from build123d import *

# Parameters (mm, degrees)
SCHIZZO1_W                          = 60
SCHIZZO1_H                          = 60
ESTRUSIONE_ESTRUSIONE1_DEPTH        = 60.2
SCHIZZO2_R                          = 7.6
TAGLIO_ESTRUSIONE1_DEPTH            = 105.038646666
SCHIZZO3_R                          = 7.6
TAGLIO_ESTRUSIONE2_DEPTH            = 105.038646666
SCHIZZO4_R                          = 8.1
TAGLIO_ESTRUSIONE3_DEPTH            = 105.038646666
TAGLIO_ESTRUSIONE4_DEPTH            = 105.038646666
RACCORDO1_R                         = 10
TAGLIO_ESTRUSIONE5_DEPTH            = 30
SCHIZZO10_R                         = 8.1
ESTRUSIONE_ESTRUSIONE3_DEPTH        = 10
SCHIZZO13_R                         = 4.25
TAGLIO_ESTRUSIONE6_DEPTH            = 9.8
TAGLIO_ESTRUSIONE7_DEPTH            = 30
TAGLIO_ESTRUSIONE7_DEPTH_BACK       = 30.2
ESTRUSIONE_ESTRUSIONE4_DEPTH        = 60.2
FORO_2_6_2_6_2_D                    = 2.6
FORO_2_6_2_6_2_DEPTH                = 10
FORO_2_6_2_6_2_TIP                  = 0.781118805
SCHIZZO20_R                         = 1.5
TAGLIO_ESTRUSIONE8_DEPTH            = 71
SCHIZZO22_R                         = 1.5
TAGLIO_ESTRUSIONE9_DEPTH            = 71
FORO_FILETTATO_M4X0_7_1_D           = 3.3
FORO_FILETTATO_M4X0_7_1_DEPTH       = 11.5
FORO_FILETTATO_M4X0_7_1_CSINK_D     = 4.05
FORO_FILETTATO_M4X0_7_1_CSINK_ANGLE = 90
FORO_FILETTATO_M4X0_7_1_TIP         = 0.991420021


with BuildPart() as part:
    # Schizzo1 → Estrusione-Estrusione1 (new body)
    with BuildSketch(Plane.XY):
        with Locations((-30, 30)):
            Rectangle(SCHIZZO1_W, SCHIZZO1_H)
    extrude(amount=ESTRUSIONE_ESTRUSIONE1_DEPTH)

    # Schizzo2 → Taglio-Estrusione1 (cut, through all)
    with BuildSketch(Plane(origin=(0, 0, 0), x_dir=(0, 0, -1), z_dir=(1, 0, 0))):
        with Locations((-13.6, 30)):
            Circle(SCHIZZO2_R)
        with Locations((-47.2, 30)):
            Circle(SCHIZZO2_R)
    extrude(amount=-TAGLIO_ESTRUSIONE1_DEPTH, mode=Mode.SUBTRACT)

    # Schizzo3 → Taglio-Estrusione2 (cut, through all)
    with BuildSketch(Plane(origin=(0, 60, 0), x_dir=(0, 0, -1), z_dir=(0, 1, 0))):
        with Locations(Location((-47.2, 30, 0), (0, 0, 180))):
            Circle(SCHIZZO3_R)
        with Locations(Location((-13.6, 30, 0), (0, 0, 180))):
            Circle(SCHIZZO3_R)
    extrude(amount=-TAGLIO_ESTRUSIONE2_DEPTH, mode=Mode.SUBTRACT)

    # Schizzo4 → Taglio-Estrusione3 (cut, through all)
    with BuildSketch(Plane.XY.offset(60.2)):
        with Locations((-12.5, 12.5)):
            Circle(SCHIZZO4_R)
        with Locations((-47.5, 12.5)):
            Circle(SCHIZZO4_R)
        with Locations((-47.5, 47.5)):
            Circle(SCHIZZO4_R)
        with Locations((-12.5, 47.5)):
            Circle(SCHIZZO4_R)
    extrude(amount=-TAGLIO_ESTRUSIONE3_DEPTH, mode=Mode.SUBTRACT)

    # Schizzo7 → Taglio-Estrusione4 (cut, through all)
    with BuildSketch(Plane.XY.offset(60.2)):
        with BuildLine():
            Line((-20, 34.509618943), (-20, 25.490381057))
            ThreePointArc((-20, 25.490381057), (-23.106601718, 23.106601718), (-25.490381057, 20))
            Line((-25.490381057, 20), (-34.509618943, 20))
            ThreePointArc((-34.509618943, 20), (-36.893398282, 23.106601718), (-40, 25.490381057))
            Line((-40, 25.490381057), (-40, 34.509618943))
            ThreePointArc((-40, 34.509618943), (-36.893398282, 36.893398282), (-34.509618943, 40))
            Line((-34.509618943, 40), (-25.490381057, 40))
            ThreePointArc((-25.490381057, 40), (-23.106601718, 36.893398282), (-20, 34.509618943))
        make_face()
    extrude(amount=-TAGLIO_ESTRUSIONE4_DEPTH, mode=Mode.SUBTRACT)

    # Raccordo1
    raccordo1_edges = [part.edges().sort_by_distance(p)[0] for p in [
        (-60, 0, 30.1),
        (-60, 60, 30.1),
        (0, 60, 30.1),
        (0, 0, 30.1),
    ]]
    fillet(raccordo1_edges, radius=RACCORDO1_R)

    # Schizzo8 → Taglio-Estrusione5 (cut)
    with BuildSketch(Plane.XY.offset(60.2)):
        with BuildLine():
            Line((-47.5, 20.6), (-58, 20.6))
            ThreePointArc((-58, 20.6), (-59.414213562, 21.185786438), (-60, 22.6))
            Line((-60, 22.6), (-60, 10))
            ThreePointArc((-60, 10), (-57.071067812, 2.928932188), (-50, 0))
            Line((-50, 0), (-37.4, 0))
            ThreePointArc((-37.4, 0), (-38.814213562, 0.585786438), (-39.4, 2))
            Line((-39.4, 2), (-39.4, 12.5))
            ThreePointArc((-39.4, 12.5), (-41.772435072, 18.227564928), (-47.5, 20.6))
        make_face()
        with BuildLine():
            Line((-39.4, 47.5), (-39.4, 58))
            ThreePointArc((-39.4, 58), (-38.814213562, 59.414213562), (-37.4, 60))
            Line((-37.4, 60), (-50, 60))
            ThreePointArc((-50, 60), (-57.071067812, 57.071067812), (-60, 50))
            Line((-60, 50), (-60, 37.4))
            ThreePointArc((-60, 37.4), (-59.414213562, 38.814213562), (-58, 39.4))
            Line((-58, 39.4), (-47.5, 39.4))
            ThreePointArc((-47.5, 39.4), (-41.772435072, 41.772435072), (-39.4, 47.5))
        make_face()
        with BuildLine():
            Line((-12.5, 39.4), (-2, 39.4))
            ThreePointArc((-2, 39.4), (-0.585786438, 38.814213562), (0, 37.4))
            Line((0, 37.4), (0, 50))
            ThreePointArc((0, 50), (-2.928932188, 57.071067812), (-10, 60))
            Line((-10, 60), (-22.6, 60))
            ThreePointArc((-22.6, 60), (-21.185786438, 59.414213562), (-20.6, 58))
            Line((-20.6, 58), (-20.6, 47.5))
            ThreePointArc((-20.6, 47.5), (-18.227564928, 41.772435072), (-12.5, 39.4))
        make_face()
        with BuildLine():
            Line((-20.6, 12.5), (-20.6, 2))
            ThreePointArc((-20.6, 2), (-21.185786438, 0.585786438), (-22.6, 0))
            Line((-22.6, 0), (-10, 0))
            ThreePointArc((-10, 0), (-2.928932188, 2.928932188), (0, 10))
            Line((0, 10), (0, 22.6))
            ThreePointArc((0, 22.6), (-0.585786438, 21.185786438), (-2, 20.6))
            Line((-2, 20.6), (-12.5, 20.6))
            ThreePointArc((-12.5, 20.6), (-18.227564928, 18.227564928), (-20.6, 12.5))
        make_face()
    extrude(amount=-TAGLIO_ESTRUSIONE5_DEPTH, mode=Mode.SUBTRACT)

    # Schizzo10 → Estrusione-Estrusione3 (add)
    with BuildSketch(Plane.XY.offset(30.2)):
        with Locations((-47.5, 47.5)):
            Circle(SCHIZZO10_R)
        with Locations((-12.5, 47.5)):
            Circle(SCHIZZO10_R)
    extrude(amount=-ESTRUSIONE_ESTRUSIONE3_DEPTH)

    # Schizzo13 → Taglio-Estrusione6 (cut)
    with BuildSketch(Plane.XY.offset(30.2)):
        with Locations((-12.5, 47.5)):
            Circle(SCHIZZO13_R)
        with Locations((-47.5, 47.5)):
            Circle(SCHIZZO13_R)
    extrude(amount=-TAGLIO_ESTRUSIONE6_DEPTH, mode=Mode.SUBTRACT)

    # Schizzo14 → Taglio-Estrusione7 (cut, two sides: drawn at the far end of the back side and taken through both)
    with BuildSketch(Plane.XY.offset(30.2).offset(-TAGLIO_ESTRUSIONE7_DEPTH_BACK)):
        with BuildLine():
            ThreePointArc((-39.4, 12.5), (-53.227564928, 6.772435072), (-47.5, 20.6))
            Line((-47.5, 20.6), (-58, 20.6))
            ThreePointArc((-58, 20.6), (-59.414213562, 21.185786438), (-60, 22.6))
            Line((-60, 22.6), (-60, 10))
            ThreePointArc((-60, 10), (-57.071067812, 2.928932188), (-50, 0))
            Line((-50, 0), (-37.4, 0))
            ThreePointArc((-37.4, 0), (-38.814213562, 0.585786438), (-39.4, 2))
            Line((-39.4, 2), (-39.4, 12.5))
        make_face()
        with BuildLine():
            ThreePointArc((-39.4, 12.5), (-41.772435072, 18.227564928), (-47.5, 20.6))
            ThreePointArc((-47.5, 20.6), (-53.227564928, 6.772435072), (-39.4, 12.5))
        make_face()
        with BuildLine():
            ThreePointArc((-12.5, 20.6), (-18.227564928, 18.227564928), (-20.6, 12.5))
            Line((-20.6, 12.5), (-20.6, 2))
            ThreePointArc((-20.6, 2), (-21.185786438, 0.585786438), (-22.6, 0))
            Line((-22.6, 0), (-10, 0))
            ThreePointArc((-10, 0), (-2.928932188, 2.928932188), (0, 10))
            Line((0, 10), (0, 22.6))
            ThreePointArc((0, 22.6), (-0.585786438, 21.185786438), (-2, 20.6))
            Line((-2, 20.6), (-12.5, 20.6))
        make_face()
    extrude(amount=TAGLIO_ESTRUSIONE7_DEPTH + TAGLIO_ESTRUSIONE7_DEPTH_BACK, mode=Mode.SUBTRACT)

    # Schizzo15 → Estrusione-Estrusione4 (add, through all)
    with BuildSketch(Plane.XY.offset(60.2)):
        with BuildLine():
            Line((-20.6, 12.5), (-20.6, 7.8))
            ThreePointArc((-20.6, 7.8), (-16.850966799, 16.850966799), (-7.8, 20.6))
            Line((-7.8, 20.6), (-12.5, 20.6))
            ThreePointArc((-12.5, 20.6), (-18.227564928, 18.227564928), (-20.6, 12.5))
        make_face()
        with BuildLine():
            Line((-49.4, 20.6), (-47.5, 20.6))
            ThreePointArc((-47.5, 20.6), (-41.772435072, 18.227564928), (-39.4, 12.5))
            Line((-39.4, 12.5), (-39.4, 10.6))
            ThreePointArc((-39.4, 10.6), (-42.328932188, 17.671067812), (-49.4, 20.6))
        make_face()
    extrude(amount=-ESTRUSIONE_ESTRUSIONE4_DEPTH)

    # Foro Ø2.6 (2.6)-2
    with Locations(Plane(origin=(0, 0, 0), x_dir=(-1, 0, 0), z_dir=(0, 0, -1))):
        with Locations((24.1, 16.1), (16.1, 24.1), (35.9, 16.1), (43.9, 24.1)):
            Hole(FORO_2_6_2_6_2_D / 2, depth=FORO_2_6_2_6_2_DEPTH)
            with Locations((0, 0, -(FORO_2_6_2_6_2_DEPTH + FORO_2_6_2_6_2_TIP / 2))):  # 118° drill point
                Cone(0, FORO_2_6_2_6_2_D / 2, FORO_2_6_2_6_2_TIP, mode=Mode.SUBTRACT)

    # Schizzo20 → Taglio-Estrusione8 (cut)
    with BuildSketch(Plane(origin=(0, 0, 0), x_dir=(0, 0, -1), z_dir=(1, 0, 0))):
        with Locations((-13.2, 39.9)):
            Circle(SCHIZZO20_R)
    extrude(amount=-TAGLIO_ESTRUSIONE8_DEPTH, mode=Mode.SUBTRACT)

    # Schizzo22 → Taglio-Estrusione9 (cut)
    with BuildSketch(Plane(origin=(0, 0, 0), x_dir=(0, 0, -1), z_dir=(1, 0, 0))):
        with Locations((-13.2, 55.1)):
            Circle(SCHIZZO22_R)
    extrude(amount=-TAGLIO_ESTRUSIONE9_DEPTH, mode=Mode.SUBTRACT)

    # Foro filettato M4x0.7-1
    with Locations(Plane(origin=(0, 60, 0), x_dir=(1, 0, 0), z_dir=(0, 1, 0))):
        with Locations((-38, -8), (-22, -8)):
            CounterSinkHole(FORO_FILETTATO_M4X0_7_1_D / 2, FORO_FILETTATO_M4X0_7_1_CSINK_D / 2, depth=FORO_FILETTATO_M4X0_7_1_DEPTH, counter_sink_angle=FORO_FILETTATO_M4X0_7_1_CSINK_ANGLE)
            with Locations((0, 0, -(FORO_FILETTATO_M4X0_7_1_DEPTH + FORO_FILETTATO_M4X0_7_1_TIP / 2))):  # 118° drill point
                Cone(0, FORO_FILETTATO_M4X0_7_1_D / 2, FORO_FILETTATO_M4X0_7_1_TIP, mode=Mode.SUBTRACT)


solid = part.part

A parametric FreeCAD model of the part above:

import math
import FreeCAD as App
import Part
import Sketcher
Q = App.Units.Quantity


def edges_at(feature, points):
    """Names of the edges that pass closest to the given points."""
    edges = feature.Shape.Edges
    near = lambda p: min(range(len(edges)), key=lambda i: edges[i].distToShape(Part.Vertex(*p))[0])
    return sorted({f"Edge{near(p) + 1}" for p in points})


def add_polygon(sketch, points):
    """Adds a closed chain of lines whose ends are joined by coincident constraints."""
    first, n = sketch.GeometryCount, len(points)
    for a, b in zip(points, points[1:] + points[:1]):
        sketch.addGeometry(Part.LineSegment(App.Vector(*a, 0), App.Vector(*b, 0)), False)
    for i in range(n):
        sketch.addConstraint(Sketcher.Constraint("Coincident", first + i, 2, first + (i + 1) % n, 1))

doc = App.newDocument("Part")
body = doc.addObject("PartDesign::Body", "Body")

sketch1 = body.newObject("Sketcher::SketchObject", "Sketch")
sketch1.AttachmentSupport = (doc.getObject("XY_Plane"), [""])
sketch1.MapMode = "FlatFace"
add_polygon(sketch1, [(-60, 60), (-60, 0), (0, 0), (0, 60)])
sketch1.addConstraint([
    Sketcher.Constraint("Vertical", 0),
    Sketcher.Constraint("Horizontal", 1),
    Sketcher.Constraint("Vertical", 2),
    Sketcher.Constraint("Horizontal", 3),
    Sketcher.Constraint("Coincident", 1, 2, -1, 1),
    Sketcher.Constraint("Equal", 3, 0),
    Sketcher.Constraint("DistanceX", 1, 1, 1, 2, Q("60 mm")),
])
pad1 = body.newObject("PartDesign::Pad", "Pad")
pad1.Profile = sketch1
pad1.Length = 60.2

sketch2 = body.newObject("Sketcher::SketchObject", "Sketch001")
sketch2.AttachmentSupport = (doc.getObject("YZ_Plane"), [""])
sketch2.MapMode = "FlatFace"
sketch2.addGeometry([
    Part.Circle(App.Vector(30, 14, 0), App.Vector(0, 0, 1), 8),
    Part.Circle(App.Vector(30, 47, 0), App.Vector(0, 0, 1), 8),
], False)
sketch2.addConstraint([
    Sketcher.Constraint("Equal", 0, 1),
    Sketcher.Constraint("Vertical", 0, 3, 1, 3),
    Sketcher.Constraint("Diameter", 0, Q("15.2 mm")),
    Sketcher.Constraint("DistanceX", -1, 1, 0, 3, Q("30 mm")),
    Sketcher.Constraint("DistanceY", -1, 1, 0, 3, Q("13.6 mm")),
    Sketcher.Constraint("DistanceY", -1, 1, 1, 3, Q("47.2 mm")),
])
pocket1 = body.newObject("PartDesign::Pocket", "Pocket")
pocket1.Profile = sketch2
pocket1.Type = "ThroughAll"

sketch3 = body.newObject("Sketcher::SketchObject", "Sketch002")
sketch3.AttachmentSupport = (doc.getObject("XZ_Plane"), [""])
sketch3.MapMode = "FlatFace"
sketch3.AttachmentOffset = App.Placement(App.Vector(0, 0, -60), App.Rotation())
sketch3.addGeometry([
    Part.Circle(App.Vector(-30, 47, 0), App.Vector(0, 0, 1), 8),
    Part.Circle(App.Vector(-30, 14, 0), App.Vector(0, 0, 1), 8),
], False)
sketch3.addConstraint([
    Sketcher.Constraint("Equal", 0, 1),
    Sketcher.Constraint("Vertical", 0, 3, 1, 3),
    Sketcher.Constraint("Diameter", 0, Q("15.2 mm")),
    Sketcher.Constraint("DistanceX", 0, 3, -1, 1, Q("30 mm")),
    Sketcher.Constraint("DistanceY", -1, 1, 0, 3, Q("47.2 mm")),
    Sketcher.Constraint("DistanceY", -1, 1, 1, 3, Q("13.6 mm")),
])
pocket2 = body.newObject("PartDesign::Pocket", "Pocket001")
pocket2.Profile = sketch3
pocket2.Type = "ThroughAll"
pocket2.Reversed = True

sketch4 = body.newObject("Sketcher::SketchObject", "Sketch003")
sketch4.AttachmentSupport = (doc.getObject("XY_Plane"), [""])
sketch4.MapMode = "FlatFace"
sketch4.AttachmentOffset = App.Placement(App.Vector(0, 0, 60.2), App.Rotation())
sketch4.addGeometry([
    Part.Circle(App.Vector(-12, 12, 0), App.Vector(0, 0, 1), 8),
    Part.Circle(App.Vector(-48, 12, 0), App.Vector(0, 0, 1), 8),
    Part.Circle(App.Vector(-48, 48, 0), App.Vector(0, 0, 1), 8),
    Part.Circle(App.Vector(-12, 48, 0), App.Vector(0, 0, 1), 8),
], False)
sketch4.addConstraint([
    Sketcher.Constraint("Equal", 0, 1),
    Sketcher.Constraint("Equal", 1, 2),
    Sketcher.Constraint("Equal", 2, 3),
    Sketcher.Constraint("Horizontal", 0, 3, 1, 3),
    Sketcher.Constraint("Horizontal", 2, 3, 3, 3),
    Sketcher.Constraint("Vertical", 1, 3, 2, 3),
    Sketcher.Constraint("Vertical", 0, 3, 3, 3),
    Sketcher.Constraint("Diameter", 0, Q("16.2 mm")),
    Sketcher.Constraint("DistanceX", 1, 3, 0, 3, Q("35 mm")),
    Sketcher.Constraint("DistanceY", 1, 3, 2, 3, Q("35 mm")),
    Sketcher.Constraint("DistanceX", 0, 3, -1, 1, Q("12.5 mm")),
    Sketcher.Constraint("DistanceY", -1, 1, 0, 3, Q("12.5 mm")),
])
pocket3 = body.newObject("PartDesign::Pocket", "Pocket002")
pocket3.Profile = sketch4
pocket3.Type = "ThroughAll"

sketch5 = body.newObject("Sketcher::SketchObject", "Sketch004")
sketch5.AttachmentSupport = (doc.getObject("XY_Plane"), [""])
sketch5.MapMode = "FlatFace"
sketch5.AttachmentOffset = App.Placement(App.Vector(0, 0, 60.2), App.Rotation())
sketch5.addGeometry([
    Part.LineSegment(App.Vector(-20, 25, 0), App.Vector(-20, 35, 0)),
    Part.ArcOfCircle(Part.Circle(App.Vector(-13, 47, 0), App.Vector(0, 0, 1), 15), math.radians(-150), math.radians(-120)),
    Part.LineSegment(App.Vector(-25, 40, 0), App.Vector(-35, 40, 0)),
    Part.ArcOfCircle(Part.Circle(App.Vector(-47, 47, 0), App.Vector(0, 0, 1), 15), math.radians(-60), math.radians(-30)),
    Part.LineSegment(App.Vector(-40, 35, 0), App.Vector(-40, 25, 0)),
    Part.ArcOfCircle(Part.Circle(App.Vector(-47, 13, 0), App.Vector(0, 0, 1), 15), math.radians(30), math.radians(60)),
    Part.LineSegment(App.Vector(-35, 20, 0), App.Vector(-25, 20, 0)),
    Part.ArcOfCircle(Part.Circle(App.Vector(-13, 13, 0), App.Vector(0, 0, 1), 15), math.radians(120), math.radians(150)),
], False)
sketch5.addConstraint([
    Sketcher.Constraint("Coincident", 0, 2, 1, 2),
    Sketcher.Constraint("Coincident", 1, 1, 2, 1),
    Sketcher.Constraint("Coincident", 2, 2, 3, 2),
    Sketcher.Constraint("Coincident", 3, 1, 4, 1),
    Sketcher.Constraint("Coincident", 4, 2, 5, 2),
    Sketcher.Constraint("Coincident", 5, 1, 6, 1),
    Sketcher.Constraint("Coincident", 6, 2, 7, 2),
    Sketcher.Constraint("Coincident", 7, 1, 0, 1),
    Sketcher.Constraint("Vertical", 0),
    Sketcher.Constraint("Horizontal", 2),
    Sketcher.Constraint("Vertical", 4),
    Sketcher.Constraint("Horizontal", 6),
    Sketcher.Constraint("Equal", 1, 3),
    Sketcher.Constraint("Equal", 3, 5),
    Sketcher.Constraint("Equal", 5, 7),
    Sketcher.Constraint("Horizontal", 1, 3, 3, 3),
    Sketcher.Constraint("Horizontal", 5, 3, 7, 3),
    Sketcher.Constraint("Horizontal", 0, 2, 3, 1),
    Sketcher.Constraint("Horizontal", 4, 2, 7, 1),
    Sketcher.Constraint("Vertical", 3, 3, 5, 3),
    Sketcher.Constraint("Vertical", 2, 2, 5, 1),
    Sketcher.Constraint("Equal", 6, 0),
    Sketcher.Constraint("Radius", 1, Q("15 mm")),
    Sketcher.Constraint("DistanceX", 0, 2, -1, 1, Q("20 mm")),
    Sketcher.Constraint("DistanceY", -1, 1, 1, 1, Q("40 mm")),
    Sketcher.Constraint("DistanceX", 3, 1, -1, 1, Q("40 mm")),
    Sketcher.Constraint("DistanceY", -1, 1, 5, 1, Q("20 mm")),
    Sketcher.Constraint("DistanceX", 3, 3, 1, 3, Q("35 mm")),
])
pocket4 = body.newObject("PartDesign::Pocket", "Pocket003")
pocket4.Profile = sketch5
pocket4.Type = "ThroughAll"
doc.recompute()

fillet = body.newObject("PartDesign::Fillet", "Fillet")
fillet.Base = (pocket4, edges_at(pocket4, [
    (-60, 0, 30.1),
    (-60, 60, 30.1),
    (0, 60, 30.1),
    (0, 0, 30.1),
]))
fillet.Radius = 10

sketch6 = body.newObject("Sketcher::SketchObject", "Sketch005")
sketch6.AttachmentSupport = (doc.getObject("XY_Plane"), [""])
sketch6.MapMode = "FlatFace"
sketch6.AttachmentOffset = App.Placement(App.Vector(0, 0, 60.2), App.Rotation())
sketch6.addGeometry([
    Part.LineSegment(App.Vector(-47.5, 20.6, 0), App.Vector(-58, 20.6, 0)),
    Part.ArcOfCircle(Part.Circle(App.Vector(-58, 22.6, 0), App.Vector(0, 0, 1), 2), math.radians(-180), math.radians(-90)),
    Part.LineSegment(App.Vector(-60, 22.6, 0), App.Vector(-60, 10, 0)),
    Part.ArcOfCircle(Part.Circle(App.Vector(-50, 10, 0), App.Vector(0, 0, 1), 10), math.radians(180), math.radians(270)),
    Part.LineSegment(App.Vector(-50, 0, 0), App.Vector(-37.4, 0, 0)),
    Part.ArcOfCircle(Part.Circle(App.Vector(-37.4, 2, 0), App.Vector(0, 0, 1), 2), math.radians(-180), math.radians(-90)),
    Part.LineSegment(App.Vector(-39.4, 2, 0), App.Vector(-39.4, 12.5, 0)),
    Part.ArcOfCircle(Part.Circle(App.Vector(-47.5, 12.5, 0), App.Vector(0, 0, 1), 8.1), math.radians(0), math.radians(90)),
    Part.LineSegment(App.Vector(-39.4, 47.5, 0), App.Vector(-39.4, 58, 0)),
    Part.ArcOfCircle(Part.Circle(App.Vector(-37.4, 58, 0), App.Vector(0, 0, 1), 2), math.radians(90), math.radians(180)),
    Part.LineSegment(App.Vector(-37.4, 60, 0), App.Vector(-50, 60, 0)),
    Part.ArcOfCircle(Part.Circle(App.Vector(-50, 50, 0), App.Vector(0, 0, 1), 10), math.radians(90), math.radians(180)),
    Part.LineSegment(App.Vector(-60, 50, 0), App.Vector(-60, 37.4, 0)),
    Part.ArcOfCircle(Part.Circle(App.Vector(-58, 37.4, 0), App.Vector(0, 0, 1), 2), math.radians(90), math.radians(180)),
    Part.LineSegment(App.Vector(-58, 39.4, 0), App.Vector(-47.5, 39.4, 0)),
    Part.ArcOfCircle(Part.Circle(App.Vector(-47.5, 47.5, 0), App.Vector(0, 0, 1), 8.1), math.radians(-90), math.radians(0)),
    Part.LineSegment(App.Vector(-12.5, 39.4, 0), App.Vector(-2, 39.4, 0)),
    Part.ArcOfCircle(Part.Circle(App.Vector(-2, 37.4, 0), App.Vector(0, 0, 1), 2), math.radians(0), math.radians(90)),
    Part.LineSegment(App.Vector(0, 37.4, 0), App.Vector(0, 50, 0)),
    Part.ArcOfCircle(Part.Circle(App.Vector(-10, 50, 0), App.Vector(0, 0, 1), 10), math.radians(0), math.radians(90)),
    Part.LineSegment(App.Vector(-10, 60, 0), App.Vector(-22.6, 60, 0)),
    Part.ArcOfCircle(Part.Circle(App.Vector(-22.6, 58, 0), App.Vector(0, 0, 1), 2), math.radians(0), math.radians(90)),
    Part.LineSegment(App.Vector(-20.6, 58, 0), App.Vector(-20.6, 47.5, 0)),
    Part.ArcOfCircle(Part.Circle(App.Vector(-12.5, 47.5, 0), App.Vector(0, 0, 1), 8.1), math.radians(180), math.radians(270)),
    Part.LineSegment(App.Vector(-20.6, 12.5, 0), App.Vector(-20.6, 2, 0)),
    Part.ArcOfCircle(Part.Circle(App.Vector(-22.6, 2, 0), App.Vector(0, 0, 1), 2), math.radians(-90), math.radians(0)),
    Part.LineSegment(App.Vector(-22.6, 0, 0), App.Vector(-10, 0, 0)),
    Part.ArcOfCircle(Part.Circle(App.Vector(-10, 10, 0), App.Vector(0, 0, 1), 10), math.radians(-90), math.radians(0)),
    Part.LineSegment(App.Vector(0, 10, 0), App.Vector(0, 22.6, 0)),
    Part.ArcOfCircle(Part.Circle(App.Vector(-2, 22.6, 0), App.Vector(0, 0, 1), 2), math.radians(-90), math.radians(0)),
    Part.LineSegment(App.Vector(-2, 20.6, 0), App.Vector(-12.5, 20.6, 0)),
    Part.ArcOfCircle(Part.Circle(App.Vector(-12.5, 12.5, 0), App.Vector(0, 0, 1), 8.1), math.radians(90), math.radians(180)),
], False)
sketch6.addConstraint([
    Sketcher.Constraint("Tangent", 0, 2, 1, 2),
    Sketcher.Constraint("Tangent", 1, 1, 2, 1),
    Sketcher.Constraint("Tangent", 2, 2, 3, 1),
    Sketcher.Constraint("Tangent", 3, 2, 4, 1),
    Sketcher.Constraint("Tangent", 4, 2, 5, 2),
    Sketcher.Constraint("Tangent", 5, 1, 6, 1),
    Sketcher.Constraint("Tangent", 6, 2, 7, 1),
    Sketcher.Constraint("Tangent", 7, 2, 0, 1),
    Sketcher.Constraint("Tangent", 8, 2, 9, 2),
    Sketcher.Constraint("Tangent", 9, 1, 10, 1),
    Sketcher.Constraint("Tangent", 10, 2, 11, 1),
    Sketcher.Constraint("Tangent", 11, 2, 12, 1),
    Sketcher.Constraint("Tangent", 12, 2, 13, 2),
    Sketcher.Constraint("Tangent", 13, 1, 14, 1),
    Sketcher.Constraint("Tangent", 14, 2, 15, 1),
    Sketcher.Constraint("Tangent", 15, 2, 8, 1),
    Sketcher.Constraint("Tangent", 16, 2, 17, 2),
    Sketcher.Constraint("Tangent", 17, 1, 18, 1),
    Sketcher.Constraint("Tangent", 18, 2, 19, 1),
    Sketcher.Constraint("Tangent", 19, 2, 20, 1),
    Sketcher.Constraint("Tangent", 20, 2, 21, 2),
    Sketcher.Constraint("Tangent", 21, 1, 22, 1),
    Sketcher.Constraint("Tangent", 22, 2, 23, 1),
    Sketcher.Constraint("Tangent", 23, 2, 16, 1),
    Sketcher.Constraint("Tangent", 24, 2, 25, 2),
    Sketcher.Constraint("Tangent", 25, 1, 26, 1),
    Sketcher.Constraint("Tangent", 26, 2, 27, 1),
    Sketcher.Constraint("Tangent", 27, 2, 28, 1),
    Sketcher.Constraint("Tangent", 28, 2, 29, 2),
    Sketcher.Constraint("Tangent", 29, 1, 30, 1),
    Sketcher.Constraint("Tangent", 30, 2, 31, 1),
    Sketcher.Constraint("Tangent", 31, 2, 24, 1),
    Sketcher.Constraint("Horizontal", 0),
    Sketcher.Constraint("Vertical", 2),
    Sketcher.Constraint("Horizontal", 4),
    Sketcher.Constraint("Vertical", 6),
    Sketcher.Constraint("Vertical", 8),
    Sketcher.Constraint("Horizontal", 10),
    Sketcher.Constraint("Vertical", 12),
    Sketcher.Constraint("Horizontal", 14),
    Sketcher.Constraint("Horizontal", 16),
    Sketcher.Constraint("Vertical", 18),
    Sketcher.Constraint("Horizontal", 20),
    Sketcher.Constraint("Vertical", 22),
    Sketcher.Constraint("Vertical", 24),
    Sketcher.Constraint("Horizontal", 26),
    Sketcher.Constraint("Vertical", 28),
    Sketcher.Constraint("Horizontal", 30),
    Sketcher.Constraint("Equal", 1, 5),
    Sketcher.Constraint("Equal", 5, 9),
    Sketcher.Constraint("Equal", 3, 11),
    Sketcher.Constraint("Equal", 9, 13),
    Sketcher.Constraint("Equal", 7, 15),
    Sketcher.Constraint("Equal", 13, 17),
    Sketcher.Constraint("Equal", 11, 19),
    Sketcher.Constraint("Equal", 17, 21),
    Sketcher.Constraint("Equal", 15, 23),
    Sketcher.Constraint("Equal", 21, 25),
    Sketcher.Constraint("Equal", 19, 27),
    Sketcher.Constraint("Equal", 25, 29),
    Sketcher.Constraint("Equal", 23, 31),
    Sketcher.Constraint("PointOnObject", 3, 2, -1),
    Sketcher.Constraint("PointOnObject", 17, 1, -2),
    Sketcher.Constraint("PointOnObject", 25, 1, -1),
    Sketcher.Constraint("PointOnObject", 27, 2, -2),
    Sketcher.Constraint("Horizontal", 13, 3, 17, 3),
    Sketcher.Constraint("Horizontal", 11, 3, 19, 3),
    Sketcher.Constraint("Horizontal", 1, 3, 29, 3),
    Sketcher.Constraint("Vertical", 5, 3, 9, 3),
    Sketcher.Constraint("Vertical", 3, 3, 11, 3),
    Sketcher.Constraint("Vertical", 21, 3, 25, 3),
    Sketcher.Constraint("Equal", 14, 16),
    Sketcher.Constraint("Equal", 26, 2),
    Sketcher.Constraint("Equal", 6, 8),
    Sketcher.Constraint("Radius", 1, Q("2 mm")),
    Sketcher.Constraint("Radius", 3, Q("10 mm")),
    Sketcher.Constraint("Radius", 7, Q("8.1 mm")),
    Sketcher.Constraint("DistanceX", 0, 2, 0, 1, Q("10.5 mm")),
    Sketcher.Constraint("DistanceX", 1, 3, -1, 1, Q("58 mm")),
    Sketcher.Constraint("DistanceY", -1, 1, 9, 3, Q("58 mm")),
])
pocket5 = body.newObject("PartDesign::Pocket", "Pocket004")
pocket5.Profile = sketch6
pocket5.Length = 30

sketch7 = body.newObject("Sketcher::SketchObject", "Sketch006")
sketch7.AttachmentSupport = (doc.getObject("XY_Plane"), [""])
sketch7.MapMode = "FlatFace"
sketch7.AttachmentOffset = App.Placement(App.Vector(0, 0, 30.2), App.Rotation())
sketch7.addGeometry([
    Part.Circle(App.Vector(-48, 48, 0), App.Vector(0, 0, 1), 8),
    Part.Circle(App.Vector(-12, 48, 0), App.Vector(0, 0, 1), 8),
], False)
sketch7.addConstraint([
    Sketcher.Constraint("Equal", 0, 1),
    Sketcher.Constraint("Horizontal", 0, 3, 1, 3),
    Sketcher.Constraint("Diameter", 0, Q("16.2 mm")),
    Sketcher.Constraint("DistanceX", 0, 3, 1, 3, Q("35 mm")),
    Sketcher.Constraint("DistanceX", 0, 3, -1, 1, Q("47.5 mm")),
    Sketcher.Constraint("DistanceY", -1, 1, 0, 3, Q("47.5 mm")),
])
pad2 = body.newObject("PartDesign::Pad", "Pad001")
pad2.Profile = sketch7
pad2.Length = 10
pad2.Reversed = True

sketch8 = body.newObject("Sketcher::SketchObject", "Sketch007")
sketch8.AttachmentSupport = (doc.getObject("XY_Plane"), [""])
sketch8.MapMode = "FlatFace"
sketch8.AttachmentOffset = App.Placement(App.Vector(0, 0, 30.2), App.Rotation())
sketch8.addGeometry([
    Part.Circle(App.Vector(-12.5, 47.5, 0), App.Vector(0, 0, 1), 4.2),
    Part.Circle(App.Vector(-47.5, 47.5, 0), App.Vector(0, 0, 1), 4.2),
], False)
sketch8.addConstraint([
    Sketcher.Constraint("Equal", 0, 1),
    Sketcher.Constraint("Horizontal", 0, 3, 1, 3),
    Sketcher.Constraint("Diameter", 0, Q("8.5 mm")),
    Sketcher.Constraint("DistanceX", 1, 3, 0, 3, Q("35 mm")),
    Sketcher.Constraint("DistanceX", 0, 3, -1, 1, Q("12.5 mm")),
    Sketcher.Constraint("DistanceY", -1, 1, 0, 3, Q("47.5 mm")),
])
pocket6 = body.newObject("PartDesign::Pocket", "Pocket005")
pocket6.Profile = sketch8
pocket6.Length = 9.8

sketch9 = body.newObject("Sketcher::SketchObject", "Sketch008")
sketch9.AttachmentSupport = (doc.getObject("XY_Plane"), [""])
sketch9.MapMode = "FlatFace"
sketch9.AttachmentOffset = App.Placement(App.Vector(0, 0, 30.2), App.Rotation())
sketch9.addGeometry([
    Part.LineSegment(App.Vector(-47.5, 20.6, 0), App.Vector(-58, 20.6, 0)),
    Part.ArcOfCircle(Part.Circle(App.Vector(-58, 22.6, 0), App.Vector(0, 0, 1), 2), math.radians(-180), math.radians(-90)),
    Part.LineSegment(App.Vector(-60, 22.6, 0), App.Vector(-60, 10, 0)),
    Part.ArcOfCircle(Part.Circle(App.Vector(-50, 10, 0), App.Vector(0, 0, 1), 10), math.radians(180), math.radians(270)),
    Part.LineSegment(App.Vector(-50, 0, 0), App.Vector(-37.4, 0, 0)),
    Part.ArcOfCircle(Part.Circle(App.Vector(-37.4, 2, 0), App.Vector(0, 0, 1), 2), math.radians(-180), math.radians(-90)),
    Part.LineSegment(App.Vector(-39.4, 2, 0), App.Vector(-39.4, 12.5, 0)),
    Part.ArcOfCircle(Part.Circle(App.Vector(-47.5, 12.5, 0), App.Vector(0, 0, 1), 8.1), math.radians(0), math.radians(90)),
    Part.ArcOfCircle(Part.Circle(App.Vector(-12.5, 12.5, 0), App.Vector(0, 0, 1), 8.1), math.radians(90), math.radians(180)),
    Part.LineSegment(App.Vector(-20.6, 12.5, 0), App.Vector(-20.6, 2, 0)),
    Part.ArcOfCircle(Part.Circle(App.Vector(-22.6, 2, 0), App.Vector(0, 0, 1), 2), math.radians(-90), math.radians(0)),
    Part.LineSegment(App.Vector(-22.6, 0, 0), App.Vector(-10, 0, 0)),
    Part.ArcOfCircle(Part.Circle(App.Vector(-10, 10, 0), App.Vector(0, 0, 1), 10), math.radians(-90), math.radians(0)),
    Part.LineSegment(App.Vector(0, 10, 0), App.Vector(0, 22.6, 0)),
    Part.ArcOfCircle(Part.Circle(App.Vector(-2, 22.6, 0), App.Vector(0, 0, 1), 2), math.radians(-90), math.radians(0)),
    Part.LineSegment(App.Vector(-2, 20.6, 0), App.Vector(-12.5, 20.6, 0)),
], False)
sketch9.addConstraint([
    Sketcher.Constraint("Tangent", 0, 2, 1, 2),
    Sketcher.Constraint("Tangent", 1, 1, 2, 1),
    Sketcher.Constraint("Tangent", 2, 2, 3, 1),
    Sketcher.Constraint("Tangent", 3, 2, 4, 1),
    Sketcher.Constraint("Tangent", 4, 2, 5, 2),
    Sketcher.Constraint("Tangent", 5, 1, 6, 1),
    Sketcher.Constraint("Tangent", 6, 2, 7, 1),
    Sketcher.Constraint("Tangent", 7, 2, 0, 1),
    Sketcher.Constraint("Tangent", 8, 2, 9, 1),
    Sketcher.Constraint("Tangent", 9, 2, 10, 2),
    Sketcher.Constraint("Tangent", 10, 1, 11, 1),
    Sketcher.Constraint("Tangent", 11, 2, 12, 1),
    Sketcher.Constraint("Tangent", 12, 2, 13, 1),
    Sketcher.Constraint("Tangent", 13, 2, 14, 2),
    Sketcher.Constraint("Tangent", 14, 1, 15, 1),
    Sketcher.Constraint("Tangent", 15, 2, 8, 1),
    Sketcher.Constraint("Horizontal", 0),
    Sketcher.Constraint("Vertical", 2),
    Sketcher.Constraint("Horizontal", 4),
    Sketcher.Constraint("Vertical", 6),
    Sketcher.Constraint("Vertical", 9),
    Sketcher.Constraint("Horizontal", 11),
    Sketcher.Constraint("Vertical", 13),
    Sketcher.Constraint("Horizontal", 15),
    Sketcher.Constraint("Equal", 1, 5),
    Sketcher.Constraint("Equal", 7, 8),
    Sketcher.Constraint("Equal", 5, 10),
    Sketcher.Constraint("Equal", 3, 12),
    Sketcher.Constraint("Equal", 10, 14),
    Sketcher.Constraint("PointOnObject", 3, 2, -1),
    Sketcher.Constraint("PointOnObject", 10, 1, -1),
    Sketcher.Constraint("PointOnObject", 12, 2, -2),
    Sketcher.Constraint("Horizontal", 7, 3, 8, 3),
    Sketcher.Constraint("Equal", 4, 11),
    Sketcher.Constraint("Equal", 11, 2),
    Sketcher.Constraint("Radius", 1, Q("2 mm")),
    Sketcher.Constraint("Radius", 3, Q("10 mm")),
    Sketcher.Constraint("Radius", 7, Q("8.1 mm")),
    Sketcher.Constraint("DistanceX", 0, 2, 0, 1, Q("10.5 mm")),
    Sketcher.Constraint("DistanceX", 1, 3, -1, 1, Q("58 mm")),
])
pocket7 = body.newObject("PartDesign::Pocket", "Pocket006")
pocket7.Profile = sketch9
pocket7.Type = "ThroughAll"
pocket7.Midplane = True

sketch10 = body.newObject("Sketcher::SketchObject", "Sketch009")
sketch10.AttachmentSupport = (doc.getObject("XY_Plane"), [""])
sketch10.MapMode = "FlatFace"
sketch10.AttachmentOffset = App.Placement(App.Vector(0, 0, 60.2), App.Rotation())
sketch10.addGeometry([
    Part.LineSegment(App.Vector(-20.6, 12.5, 0), App.Vector(-20.6, 7.8, 0)),
    Part.ArcOfCircle(Part.Circle(App.Vector(-7.8, 7.8, 0), App.Vector(0, 0, 1), 12.8), math.radians(90), math.radians(180)),
    Part.LineSegment(App.Vector(-7.8, 20.6, 0), App.Vector(-12.5, 20.6, 0)),
    Part.ArcOfCircle(Part.Circle(App.Vector(-12.5, 12.5, 0), App.Vector(0, 0, 1), 8.1), math.radians(90), math.radians(180)),
    Part.LineSegment(App.Vector(-47.5, 20.6, 0), App.Vector(-49.4, 20.6, 0)),
    Part.ArcOfCircle(Part.Circle(App.Vector(-49.4, 10.6, 0), App.Vector(0, 0, 1), 10), math.radians(0), math.radians(90)),
    Part.LineSegment(App.Vector(-39.4, 10.6, 0), App.Vector(-39.4, 12.5, 0)),
    Part.ArcOfCircle(Part.Circle(App.Vector(-47.5, 12.5, 0), App.Vector(0, 0, 1), 8.1), math.radians(0), math.radians(90)),
], False)
sketch10.addConstraint([
    Sketcher.Constraint("Tangent", 0, 2, 1, 2),
    Sketcher.Constraint("Tangent", 1, 1, 2, 1),
    Sketcher.Constraint("Tangent", 2, 2, 3, 1),
    Sketcher.Constraint("Tangent", 3, 2, 0, 1),
    Sketcher.Constraint("Tangent", 4, 2, 5, 2),
    Sketcher.Constraint("Tangent", 5, 1, 6, 1),
    Sketcher.Constraint("Tangent", 6, 2, 7, 1),
    Sketcher.Constraint("Tangent", 7, 2, 4, 1),
    Sketcher.Constraint("Vertical", 0),
    Sketcher.Constraint("Horizontal", 2),
    Sketcher.Constraint("Horizontal", 4),
    Sketcher.Constraint("Vertical", 6),
    Sketcher.Constraint("Equal", 3, 7),
    Sketcher.Constraint("Horizontal", 3, 3, 7, 3),
    Sketcher.Constraint("Radius", 5, Q("10 mm")),
    Sketcher.Constraint("Radius", 1, Q("12.8 mm")),
    Sketcher.Constraint("Radius", 3, Q("8.1 mm")),
    Sketcher.Constraint("DistanceX", 7, 3, 3, 3, Q("35 mm")),
    Sketcher.Constraint("DistanceX", 1, 3, -1, 1, Q("7.8 mm")),
    Sketcher.Constraint("DistanceY", -1, 1, 1, 3, Q("7.8 mm")),
])
pad3 = body.newObject("PartDesign::Pad", "Pad002")
pad3.Profile = sketch10
pad3.Type = "UpToLast"
pad3.Reversed = True

sketch11 = body.newObject("Sketcher::SketchObject", "Sketch010")
sketch11.AttachmentSupport = (doc.getObject("XY_Plane"), [""])
sketch11.MapMode = "FlatFace"
sketch11.addGeometry([
    Part.Circle(App.Vector(-24.1, 16.1, 0), App.Vector(0, 0, 1), 1.3),
    Part.Circle(App.Vector(-16.1, 24.1, 0), App.Vector(0, 0, 1), 1.3),
    Part.Circle(App.Vector(-35.9, 16.1, 0), App.Vector(0, 0, 1), 1.3),
    Part.Circle(App.Vector(-43.9, 24.1, 0), App.Vector(0, 0, 1), 1.3),
], False)
sketch11.addConstraint([
    Sketcher.Constraint("Equal", 0, 1),
    Sketcher.Constraint("Equal", 1, 2),
    Sketcher.Constraint("Equal", 2, 3),
    Sketcher.Constraint("Horizontal", 0, 3, 2, 3),
    Sketcher.Constraint("Horizontal", 1, 3, 3, 3),
    Sketcher.Constraint("Diameter", 0, Q("2.6 mm")),
    Sketcher.Constraint("DistanceX", 0, 3, 1, 3, Q("8 mm")),
    Sketcher.Constraint("DistanceY", 0, 3, 1, 3, Q("8 mm")),
    Sketcher.Constraint("DistanceX", 3, 3, 2, 3, Q("8 mm")),
    Sketcher.Constraint("DistanceX", 0, 3, -1, 1, Q("24.1 mm")),
    Sketcher.Constraint("DistanceY", -1, 1, 0, 3, Q("16.1 mm")),
    Sketcher.Constraint("DistanceX", 2, 3, -1, 1, Q("35.9 mm")),
])
doc.recompute()
hole = body.newObject("PartDesign::Hole", "Hole")
hole.Profile = sketch11
hole.ThreadType = "None"
hole.Diameter = 2.6
hole.DepthType = "Dimension"
hole.Depth = 10
hole.DrillPoint = "Angled"
hole.DrillPointAngle = 118
hole.Reversed = True

sketch12 = body.newObject("Sketcher::SketchObject", "Sketch011")
sketch12.AttachmentSupport = (doc.getObject("YZ_Plane"), [""])
sketch12.MapMode = "FlatFace"
sketch12.addGeometry(Part.Circle(App.Vector(39.9, 13.2, 0), App.Vector(0, 0, 1), 1.5), False)
sketch12.addConstraint([
    Sketcher.Constraint("Diameter", 0, Q("3 mm")),
    Sketcher.Constraint("DistanceX", -1, 1, 0, 3, Q("39.9 mm")),
    Sketcher.Constraint("DistanceY", -1, 1, 0, 3, Q("13.2 mm")),
])
pocket8 = body.newObject("PartDesign::Pocket", "Pocket007")
pocket8.Profile = sketch12
pocket8.Length = 71

sketch13 = body.newObject("Sketcher::SketchObject", "Sketch012")
sketch13.AttachmentSupport = (doc.getObject("YZ_Plane"), [""])
sketch13.MapMode = "FlatFace"
sketch13.addGeometry(Part.Circle(App.Vector(55.1, 13.2, 0), App.Vector(0, 0, 1), 1.5), False)
sketch13.addConstraint([
    Sketcher.Constraint("Diameter", 0, Q("3 mm")),
    Sketcher.Constraint("DistanceX", -1, 1, 0, 3, Q("55.1 mm")),
    Sketcher.Constraint("DistanceY", -1, 1, 0, 3, Q("13.2 mm")),
])
pocket9 = body.newObject("PartDesign::Pocket", "Pocket008")
pocket9.Profile = sketch13
pocket9.Length = 71

sketch14 = body.newObject("Sketcher::SketchObject", "Sketch013")
sketch14.AttachmentSupport = (doc.getObject("XZ_Plane"), [""])
sketch14.MapMode = "FlatFace"
sketch14.AttachmentOffset = App.Placement(App.Vector(0, 0, -60), App.Rotation())
sketch14.addGeometry([
    Part.Circle(App.Vector(-38, 8, 0), App.Vector(0, 0, 1), 1.6),
    Part.Circle(App.Vector(-22, 8, 0), App.Vector(0, 0, 1), 1.6),
], False)
sketch14.addConstraint([
    Sketcher.Constraint("Equal", 0, 1),
    Sketcher.Constraint("Horizontal", 0, 3, 1, 3),
    Sketcher.Constraint("Diameter", 0, Q("3.3 mm")),
    Sketcher.Constraint("DistanceX", 0, 3, -1, 1, Q("38 mm")),
    Sketcher.Constraint("DistanceY", -1, 1, 0, 3, Q("8 mm")),
    Sketcher.Constraint("DistanceX", 1, 3, -1, 1, Q("22 mm")),
])
doc.recompute()
hole2 = body.newObject("PartDesign::Hole", "Hole001")
hole2.Profile = sketch14
hole2.ThreadType = "None"
hole2.Diameter = 3.3
hole2.DepthType = "Dimension"
hole2.Depth = 11.5
hole2.DrillPoint = "Angled"
hole2.DrillPointAngle = 118
hole2.HoleCutType = "Countersink"
hole2.HoleCutDiameter = 4.05
hole2.HoleCutCountersinkAngle = 90
hole2.Reversed = True

doc.recompute()
